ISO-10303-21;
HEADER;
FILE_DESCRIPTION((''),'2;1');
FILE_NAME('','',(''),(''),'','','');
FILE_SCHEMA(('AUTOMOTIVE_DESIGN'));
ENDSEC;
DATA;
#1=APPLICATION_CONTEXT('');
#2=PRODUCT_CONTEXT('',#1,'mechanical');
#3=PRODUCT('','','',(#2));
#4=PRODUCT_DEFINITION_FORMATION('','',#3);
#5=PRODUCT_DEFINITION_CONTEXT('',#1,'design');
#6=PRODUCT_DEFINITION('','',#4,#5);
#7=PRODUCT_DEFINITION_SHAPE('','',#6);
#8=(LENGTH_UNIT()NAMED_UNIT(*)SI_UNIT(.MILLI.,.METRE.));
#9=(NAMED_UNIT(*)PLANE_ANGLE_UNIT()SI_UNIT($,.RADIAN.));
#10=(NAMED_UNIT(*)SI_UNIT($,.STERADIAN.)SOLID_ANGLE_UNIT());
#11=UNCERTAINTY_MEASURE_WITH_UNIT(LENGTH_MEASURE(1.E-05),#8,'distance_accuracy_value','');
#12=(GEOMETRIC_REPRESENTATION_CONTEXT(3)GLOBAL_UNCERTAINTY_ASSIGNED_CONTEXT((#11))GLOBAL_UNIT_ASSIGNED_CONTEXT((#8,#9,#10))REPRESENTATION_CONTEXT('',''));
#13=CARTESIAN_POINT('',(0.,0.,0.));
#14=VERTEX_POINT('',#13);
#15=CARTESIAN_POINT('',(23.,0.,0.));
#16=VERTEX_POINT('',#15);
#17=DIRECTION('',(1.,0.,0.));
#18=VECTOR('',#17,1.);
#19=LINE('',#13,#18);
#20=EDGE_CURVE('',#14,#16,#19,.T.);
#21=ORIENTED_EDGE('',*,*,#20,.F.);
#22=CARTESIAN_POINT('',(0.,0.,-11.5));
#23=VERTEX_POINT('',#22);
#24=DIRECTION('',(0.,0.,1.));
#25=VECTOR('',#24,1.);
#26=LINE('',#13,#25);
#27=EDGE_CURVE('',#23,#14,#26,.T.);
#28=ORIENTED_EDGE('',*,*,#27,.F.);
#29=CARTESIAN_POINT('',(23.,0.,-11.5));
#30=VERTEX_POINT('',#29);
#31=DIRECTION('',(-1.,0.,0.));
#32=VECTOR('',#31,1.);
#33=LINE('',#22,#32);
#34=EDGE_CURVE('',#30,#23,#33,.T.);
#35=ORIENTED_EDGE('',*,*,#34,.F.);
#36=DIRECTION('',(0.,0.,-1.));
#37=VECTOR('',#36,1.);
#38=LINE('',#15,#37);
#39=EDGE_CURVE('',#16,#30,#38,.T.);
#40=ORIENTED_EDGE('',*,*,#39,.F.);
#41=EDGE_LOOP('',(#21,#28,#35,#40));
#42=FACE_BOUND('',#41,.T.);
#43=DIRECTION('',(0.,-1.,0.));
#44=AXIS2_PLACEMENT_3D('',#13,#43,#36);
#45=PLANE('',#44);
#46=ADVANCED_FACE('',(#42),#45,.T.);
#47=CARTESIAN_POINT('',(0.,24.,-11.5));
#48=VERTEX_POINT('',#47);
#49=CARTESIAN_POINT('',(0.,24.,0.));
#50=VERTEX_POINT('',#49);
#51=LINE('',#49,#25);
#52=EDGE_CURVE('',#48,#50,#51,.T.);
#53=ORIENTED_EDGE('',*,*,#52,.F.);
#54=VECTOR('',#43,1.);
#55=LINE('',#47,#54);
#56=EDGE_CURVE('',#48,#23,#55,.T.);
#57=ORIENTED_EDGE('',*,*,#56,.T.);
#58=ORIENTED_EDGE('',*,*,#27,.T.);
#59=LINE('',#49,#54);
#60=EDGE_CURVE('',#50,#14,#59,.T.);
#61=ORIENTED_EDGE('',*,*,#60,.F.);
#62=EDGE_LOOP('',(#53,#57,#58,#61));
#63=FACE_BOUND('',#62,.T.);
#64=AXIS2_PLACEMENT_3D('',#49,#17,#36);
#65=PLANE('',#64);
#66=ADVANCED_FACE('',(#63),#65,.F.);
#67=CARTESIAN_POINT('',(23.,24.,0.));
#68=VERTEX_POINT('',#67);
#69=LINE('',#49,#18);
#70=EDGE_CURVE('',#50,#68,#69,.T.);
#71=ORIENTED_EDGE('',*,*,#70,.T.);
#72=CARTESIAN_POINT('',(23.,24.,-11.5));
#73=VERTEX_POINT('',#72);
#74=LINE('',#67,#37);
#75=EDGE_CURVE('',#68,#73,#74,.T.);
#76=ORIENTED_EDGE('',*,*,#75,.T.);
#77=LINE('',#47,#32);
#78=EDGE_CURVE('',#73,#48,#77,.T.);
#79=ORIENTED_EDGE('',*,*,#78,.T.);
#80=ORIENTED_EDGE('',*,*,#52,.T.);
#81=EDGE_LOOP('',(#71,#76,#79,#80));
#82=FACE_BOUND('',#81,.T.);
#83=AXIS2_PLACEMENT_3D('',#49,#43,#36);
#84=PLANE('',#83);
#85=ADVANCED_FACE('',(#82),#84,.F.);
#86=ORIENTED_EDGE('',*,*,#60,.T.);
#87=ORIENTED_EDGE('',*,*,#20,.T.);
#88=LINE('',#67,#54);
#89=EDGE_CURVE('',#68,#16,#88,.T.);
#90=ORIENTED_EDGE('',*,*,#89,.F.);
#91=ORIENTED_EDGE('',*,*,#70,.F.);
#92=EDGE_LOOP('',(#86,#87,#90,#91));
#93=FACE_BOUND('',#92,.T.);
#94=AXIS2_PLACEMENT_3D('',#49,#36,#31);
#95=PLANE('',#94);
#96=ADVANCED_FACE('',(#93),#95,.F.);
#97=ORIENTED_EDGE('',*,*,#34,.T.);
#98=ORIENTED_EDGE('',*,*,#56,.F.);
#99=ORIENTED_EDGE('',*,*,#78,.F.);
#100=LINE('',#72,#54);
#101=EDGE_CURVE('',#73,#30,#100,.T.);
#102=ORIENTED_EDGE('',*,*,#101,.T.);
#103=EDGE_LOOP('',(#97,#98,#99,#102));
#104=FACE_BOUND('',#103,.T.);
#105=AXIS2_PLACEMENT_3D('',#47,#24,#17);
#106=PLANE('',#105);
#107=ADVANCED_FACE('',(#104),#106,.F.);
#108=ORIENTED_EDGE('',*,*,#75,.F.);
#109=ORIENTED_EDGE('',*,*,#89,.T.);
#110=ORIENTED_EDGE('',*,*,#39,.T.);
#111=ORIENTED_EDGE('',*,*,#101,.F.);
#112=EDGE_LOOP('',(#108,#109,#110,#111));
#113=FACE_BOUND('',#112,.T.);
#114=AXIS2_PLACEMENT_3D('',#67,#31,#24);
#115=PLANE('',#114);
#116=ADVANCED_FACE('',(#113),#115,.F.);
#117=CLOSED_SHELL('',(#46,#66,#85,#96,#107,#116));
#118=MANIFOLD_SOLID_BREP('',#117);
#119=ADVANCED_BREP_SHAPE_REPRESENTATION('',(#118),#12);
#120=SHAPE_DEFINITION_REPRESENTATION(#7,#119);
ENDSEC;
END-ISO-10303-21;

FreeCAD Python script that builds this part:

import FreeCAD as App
import Part
import Sketcher
from FreeCAD import Vector
Q = App.Units.Quantity

doc = App.newDocument("Part")
params = doc.addObject("Spreadsheet::Sheet", "Params")
for row, (alias, value) in enumerate([
    ("sketch1_width", "23 mm"),
    ("sketch1_height", "11.5 mm"),
    ("pad1_length", "24 mm"),
], start=1):
    params.set(f"A{row}", alias)
    params.set(f"B{row}", "=" + value)
    params.setAlias(f"B{row}", alias)

body = doc.addObject("PartDesign::Body", "Body")

sketch1 = body.newObject("Sketcher::SketchObject", "Sketch")
sketch1.AttachmentSupport = (doc.getObject("XZ_Plane"), [""])
sketch1.MapMode = "FlatFace"
sketch1.addGeometry([
    Part.LineSegment(Vector(0, -12, 0), Vector(0, 0, 0)),
    Part.LineSegment(Vector(0, 0, 0), Vector(23, 0, 0)),
    Part.LineSegment(Vector(23, 0, 0), Vector(23, -12, 0)),
    Part.LineSegment(Vector(23, -12, 0), Vector(0, -12, 0)),
], False)
sketch1.addConstraint([
    Sketcher.Constraint("Coincident", 0, 2, 1, 1),
    Sketcher.Constraint("Coincident", 1, 2, 2, 1),
    Sketcher.Constraint("Coincident", 2, 2, 3, 1),
    Sketcher.Constraint("Coincident", 3, 2, 0, 1),
    Sketcher.Constraint("Vertical", 0),
    Sketcher.Constraint("Horizontal", 1),
    Sketcher.Constraint("Vertical", 2),
    Sketcher.Constraint("Horizontal", 3),
    Sketcher.Constraint("Coincident", 0, 2, -1, 1),
    Sketcher.Constraint("DistanceX", 1, 1, 1, 2, Q("23 mm")),
    Sketcher.Constraint("DistanceY", 0, 1, 0, 2, Q("11.5 mm")),
])
sketch1.setExpression("Constraints[9]", "Params.sketch1_width")
sketch1.setExpression("Constraints[10]", "Params.sketch1_height")
pad1 = body.newObject("PartDesign::Pad", "Pad")
pad1.Profile = sketch1
pad1.setExpression("Length", "Params.pad1_length")
pad1.Reversed = True

doc.recompute()
